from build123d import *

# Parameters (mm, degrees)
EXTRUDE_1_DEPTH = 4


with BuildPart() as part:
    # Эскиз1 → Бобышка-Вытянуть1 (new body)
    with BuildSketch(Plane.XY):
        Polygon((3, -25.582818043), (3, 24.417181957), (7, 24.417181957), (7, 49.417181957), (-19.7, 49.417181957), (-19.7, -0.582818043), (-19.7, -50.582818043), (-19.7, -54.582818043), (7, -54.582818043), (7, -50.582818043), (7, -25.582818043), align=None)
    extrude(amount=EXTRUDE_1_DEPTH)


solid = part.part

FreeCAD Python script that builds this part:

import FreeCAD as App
import Part
import Sketcher

doc = App.newDocument("Part")
body = doc.addObject("PartDesign::Body", "Body")

sketch1 = body.newObject("Sketcher::SketchObject", "Sketch")
sketch1.AttachmentSupport = (doc.getObject("XY_Plane"), [""])
sketch1.MapMode = "FlatFace"
sketch1.addGeometry([
    Part.LineSegment(App.Vector(3, -25.6, 0), App.Vector(3, 24.4, 0)),
    Part.LineSegment(App.Vector(3, 24.4, 0), App.Vector(7, 24.4, 0)),
    Part.LineSegment(App.Vector(7, 24.4, 0), App.Vector(7, 49.4, 0)),
    Part.LineSegment(App.Vector(7, 49.4, 0), App.Vector(-19.7, 49.4, 0)),
    Part.LineSegment(App.Vector(-19.7, 49.4, 0), App.Vector(-19.7, -54.6, 0)),
    Part.LineSegment(App.Vector(-19.7, -54.6, 0), App.Vector(7, -54.6, 0)),
    Part.LineSegment(App.Vector(7, -54.6, 0), App.Vector(7, -25.6, 0)),
    Part.LineSegment(App.Vector(7, -25.6, 0), App.Vector(3, -25.6, 0)),
], False)
sketch1.addConstraint([
    Sketcher.Constraint("Coincident", 0, 2, 1, 1),
    Sketcher.Constraint("Coincident", 1, 2, 2, 1),
    Sketcher.Constraint("Coincident", 2, 2, 3, 1),
    Sketcher.Constraint("Coincident", 3, 2, 4, 1),
    Sketcher.Constraint("Coincident", 4, 2, 5, 1),
    Sketcher.Constraint("Coincident", 5, 2, 6, 1),
    Sketcher.Constraint("Coincident", 6, 2, 7, 1),
    Sketcher.Constraint("Coincident", 7, 2, 0, 1),
    Sketcher.Constraint("Vertical", 0),
    Sketcher.Constraint("Horizontal", 1),
    Sketcher.Constraint("Vertical", 2),
    Sketcher.Constraint("Horizontal", 3),
    Sketcher.Constraint("Vertical", 4),
    Sketcher.Constraint("Horizontal", 5),
    Sketcher.Constraint("Vertical", 6),
    Sketcher.Constraint("Horizontal", 7),
    Sketcher.Constraint("Vertical", 2, 2, 5, 2),
    Sketcher.Constraint("DistanceX", 1, 1, 1, 2, 4.0),
    Sketcher.Constraint("DistanceY", 0, 1, 0, 2, 50.0),
    Sketcher.Constraint("DistanceY", 2, 1, 2, 2, 25.0),
    Sketcher.Constraint("DistanceY", 4, 2, 4, 1, 104.0),
    Sketcher.Constraint("DistanceX", 3, 2, 3, 1, 26.7),
    Sketcher.Constraint("DistanceX", -1, 1, 0, 2, 3.0),
    Sketcher.Constraint("DistanceY", -1, 1, 0, 2, 24.417182),
])
pad1 = body.newObject("PartDesign::Pad", "Pad")
pad1.Profile = sketch1
pad1.Length = 4

doc.recompute()
